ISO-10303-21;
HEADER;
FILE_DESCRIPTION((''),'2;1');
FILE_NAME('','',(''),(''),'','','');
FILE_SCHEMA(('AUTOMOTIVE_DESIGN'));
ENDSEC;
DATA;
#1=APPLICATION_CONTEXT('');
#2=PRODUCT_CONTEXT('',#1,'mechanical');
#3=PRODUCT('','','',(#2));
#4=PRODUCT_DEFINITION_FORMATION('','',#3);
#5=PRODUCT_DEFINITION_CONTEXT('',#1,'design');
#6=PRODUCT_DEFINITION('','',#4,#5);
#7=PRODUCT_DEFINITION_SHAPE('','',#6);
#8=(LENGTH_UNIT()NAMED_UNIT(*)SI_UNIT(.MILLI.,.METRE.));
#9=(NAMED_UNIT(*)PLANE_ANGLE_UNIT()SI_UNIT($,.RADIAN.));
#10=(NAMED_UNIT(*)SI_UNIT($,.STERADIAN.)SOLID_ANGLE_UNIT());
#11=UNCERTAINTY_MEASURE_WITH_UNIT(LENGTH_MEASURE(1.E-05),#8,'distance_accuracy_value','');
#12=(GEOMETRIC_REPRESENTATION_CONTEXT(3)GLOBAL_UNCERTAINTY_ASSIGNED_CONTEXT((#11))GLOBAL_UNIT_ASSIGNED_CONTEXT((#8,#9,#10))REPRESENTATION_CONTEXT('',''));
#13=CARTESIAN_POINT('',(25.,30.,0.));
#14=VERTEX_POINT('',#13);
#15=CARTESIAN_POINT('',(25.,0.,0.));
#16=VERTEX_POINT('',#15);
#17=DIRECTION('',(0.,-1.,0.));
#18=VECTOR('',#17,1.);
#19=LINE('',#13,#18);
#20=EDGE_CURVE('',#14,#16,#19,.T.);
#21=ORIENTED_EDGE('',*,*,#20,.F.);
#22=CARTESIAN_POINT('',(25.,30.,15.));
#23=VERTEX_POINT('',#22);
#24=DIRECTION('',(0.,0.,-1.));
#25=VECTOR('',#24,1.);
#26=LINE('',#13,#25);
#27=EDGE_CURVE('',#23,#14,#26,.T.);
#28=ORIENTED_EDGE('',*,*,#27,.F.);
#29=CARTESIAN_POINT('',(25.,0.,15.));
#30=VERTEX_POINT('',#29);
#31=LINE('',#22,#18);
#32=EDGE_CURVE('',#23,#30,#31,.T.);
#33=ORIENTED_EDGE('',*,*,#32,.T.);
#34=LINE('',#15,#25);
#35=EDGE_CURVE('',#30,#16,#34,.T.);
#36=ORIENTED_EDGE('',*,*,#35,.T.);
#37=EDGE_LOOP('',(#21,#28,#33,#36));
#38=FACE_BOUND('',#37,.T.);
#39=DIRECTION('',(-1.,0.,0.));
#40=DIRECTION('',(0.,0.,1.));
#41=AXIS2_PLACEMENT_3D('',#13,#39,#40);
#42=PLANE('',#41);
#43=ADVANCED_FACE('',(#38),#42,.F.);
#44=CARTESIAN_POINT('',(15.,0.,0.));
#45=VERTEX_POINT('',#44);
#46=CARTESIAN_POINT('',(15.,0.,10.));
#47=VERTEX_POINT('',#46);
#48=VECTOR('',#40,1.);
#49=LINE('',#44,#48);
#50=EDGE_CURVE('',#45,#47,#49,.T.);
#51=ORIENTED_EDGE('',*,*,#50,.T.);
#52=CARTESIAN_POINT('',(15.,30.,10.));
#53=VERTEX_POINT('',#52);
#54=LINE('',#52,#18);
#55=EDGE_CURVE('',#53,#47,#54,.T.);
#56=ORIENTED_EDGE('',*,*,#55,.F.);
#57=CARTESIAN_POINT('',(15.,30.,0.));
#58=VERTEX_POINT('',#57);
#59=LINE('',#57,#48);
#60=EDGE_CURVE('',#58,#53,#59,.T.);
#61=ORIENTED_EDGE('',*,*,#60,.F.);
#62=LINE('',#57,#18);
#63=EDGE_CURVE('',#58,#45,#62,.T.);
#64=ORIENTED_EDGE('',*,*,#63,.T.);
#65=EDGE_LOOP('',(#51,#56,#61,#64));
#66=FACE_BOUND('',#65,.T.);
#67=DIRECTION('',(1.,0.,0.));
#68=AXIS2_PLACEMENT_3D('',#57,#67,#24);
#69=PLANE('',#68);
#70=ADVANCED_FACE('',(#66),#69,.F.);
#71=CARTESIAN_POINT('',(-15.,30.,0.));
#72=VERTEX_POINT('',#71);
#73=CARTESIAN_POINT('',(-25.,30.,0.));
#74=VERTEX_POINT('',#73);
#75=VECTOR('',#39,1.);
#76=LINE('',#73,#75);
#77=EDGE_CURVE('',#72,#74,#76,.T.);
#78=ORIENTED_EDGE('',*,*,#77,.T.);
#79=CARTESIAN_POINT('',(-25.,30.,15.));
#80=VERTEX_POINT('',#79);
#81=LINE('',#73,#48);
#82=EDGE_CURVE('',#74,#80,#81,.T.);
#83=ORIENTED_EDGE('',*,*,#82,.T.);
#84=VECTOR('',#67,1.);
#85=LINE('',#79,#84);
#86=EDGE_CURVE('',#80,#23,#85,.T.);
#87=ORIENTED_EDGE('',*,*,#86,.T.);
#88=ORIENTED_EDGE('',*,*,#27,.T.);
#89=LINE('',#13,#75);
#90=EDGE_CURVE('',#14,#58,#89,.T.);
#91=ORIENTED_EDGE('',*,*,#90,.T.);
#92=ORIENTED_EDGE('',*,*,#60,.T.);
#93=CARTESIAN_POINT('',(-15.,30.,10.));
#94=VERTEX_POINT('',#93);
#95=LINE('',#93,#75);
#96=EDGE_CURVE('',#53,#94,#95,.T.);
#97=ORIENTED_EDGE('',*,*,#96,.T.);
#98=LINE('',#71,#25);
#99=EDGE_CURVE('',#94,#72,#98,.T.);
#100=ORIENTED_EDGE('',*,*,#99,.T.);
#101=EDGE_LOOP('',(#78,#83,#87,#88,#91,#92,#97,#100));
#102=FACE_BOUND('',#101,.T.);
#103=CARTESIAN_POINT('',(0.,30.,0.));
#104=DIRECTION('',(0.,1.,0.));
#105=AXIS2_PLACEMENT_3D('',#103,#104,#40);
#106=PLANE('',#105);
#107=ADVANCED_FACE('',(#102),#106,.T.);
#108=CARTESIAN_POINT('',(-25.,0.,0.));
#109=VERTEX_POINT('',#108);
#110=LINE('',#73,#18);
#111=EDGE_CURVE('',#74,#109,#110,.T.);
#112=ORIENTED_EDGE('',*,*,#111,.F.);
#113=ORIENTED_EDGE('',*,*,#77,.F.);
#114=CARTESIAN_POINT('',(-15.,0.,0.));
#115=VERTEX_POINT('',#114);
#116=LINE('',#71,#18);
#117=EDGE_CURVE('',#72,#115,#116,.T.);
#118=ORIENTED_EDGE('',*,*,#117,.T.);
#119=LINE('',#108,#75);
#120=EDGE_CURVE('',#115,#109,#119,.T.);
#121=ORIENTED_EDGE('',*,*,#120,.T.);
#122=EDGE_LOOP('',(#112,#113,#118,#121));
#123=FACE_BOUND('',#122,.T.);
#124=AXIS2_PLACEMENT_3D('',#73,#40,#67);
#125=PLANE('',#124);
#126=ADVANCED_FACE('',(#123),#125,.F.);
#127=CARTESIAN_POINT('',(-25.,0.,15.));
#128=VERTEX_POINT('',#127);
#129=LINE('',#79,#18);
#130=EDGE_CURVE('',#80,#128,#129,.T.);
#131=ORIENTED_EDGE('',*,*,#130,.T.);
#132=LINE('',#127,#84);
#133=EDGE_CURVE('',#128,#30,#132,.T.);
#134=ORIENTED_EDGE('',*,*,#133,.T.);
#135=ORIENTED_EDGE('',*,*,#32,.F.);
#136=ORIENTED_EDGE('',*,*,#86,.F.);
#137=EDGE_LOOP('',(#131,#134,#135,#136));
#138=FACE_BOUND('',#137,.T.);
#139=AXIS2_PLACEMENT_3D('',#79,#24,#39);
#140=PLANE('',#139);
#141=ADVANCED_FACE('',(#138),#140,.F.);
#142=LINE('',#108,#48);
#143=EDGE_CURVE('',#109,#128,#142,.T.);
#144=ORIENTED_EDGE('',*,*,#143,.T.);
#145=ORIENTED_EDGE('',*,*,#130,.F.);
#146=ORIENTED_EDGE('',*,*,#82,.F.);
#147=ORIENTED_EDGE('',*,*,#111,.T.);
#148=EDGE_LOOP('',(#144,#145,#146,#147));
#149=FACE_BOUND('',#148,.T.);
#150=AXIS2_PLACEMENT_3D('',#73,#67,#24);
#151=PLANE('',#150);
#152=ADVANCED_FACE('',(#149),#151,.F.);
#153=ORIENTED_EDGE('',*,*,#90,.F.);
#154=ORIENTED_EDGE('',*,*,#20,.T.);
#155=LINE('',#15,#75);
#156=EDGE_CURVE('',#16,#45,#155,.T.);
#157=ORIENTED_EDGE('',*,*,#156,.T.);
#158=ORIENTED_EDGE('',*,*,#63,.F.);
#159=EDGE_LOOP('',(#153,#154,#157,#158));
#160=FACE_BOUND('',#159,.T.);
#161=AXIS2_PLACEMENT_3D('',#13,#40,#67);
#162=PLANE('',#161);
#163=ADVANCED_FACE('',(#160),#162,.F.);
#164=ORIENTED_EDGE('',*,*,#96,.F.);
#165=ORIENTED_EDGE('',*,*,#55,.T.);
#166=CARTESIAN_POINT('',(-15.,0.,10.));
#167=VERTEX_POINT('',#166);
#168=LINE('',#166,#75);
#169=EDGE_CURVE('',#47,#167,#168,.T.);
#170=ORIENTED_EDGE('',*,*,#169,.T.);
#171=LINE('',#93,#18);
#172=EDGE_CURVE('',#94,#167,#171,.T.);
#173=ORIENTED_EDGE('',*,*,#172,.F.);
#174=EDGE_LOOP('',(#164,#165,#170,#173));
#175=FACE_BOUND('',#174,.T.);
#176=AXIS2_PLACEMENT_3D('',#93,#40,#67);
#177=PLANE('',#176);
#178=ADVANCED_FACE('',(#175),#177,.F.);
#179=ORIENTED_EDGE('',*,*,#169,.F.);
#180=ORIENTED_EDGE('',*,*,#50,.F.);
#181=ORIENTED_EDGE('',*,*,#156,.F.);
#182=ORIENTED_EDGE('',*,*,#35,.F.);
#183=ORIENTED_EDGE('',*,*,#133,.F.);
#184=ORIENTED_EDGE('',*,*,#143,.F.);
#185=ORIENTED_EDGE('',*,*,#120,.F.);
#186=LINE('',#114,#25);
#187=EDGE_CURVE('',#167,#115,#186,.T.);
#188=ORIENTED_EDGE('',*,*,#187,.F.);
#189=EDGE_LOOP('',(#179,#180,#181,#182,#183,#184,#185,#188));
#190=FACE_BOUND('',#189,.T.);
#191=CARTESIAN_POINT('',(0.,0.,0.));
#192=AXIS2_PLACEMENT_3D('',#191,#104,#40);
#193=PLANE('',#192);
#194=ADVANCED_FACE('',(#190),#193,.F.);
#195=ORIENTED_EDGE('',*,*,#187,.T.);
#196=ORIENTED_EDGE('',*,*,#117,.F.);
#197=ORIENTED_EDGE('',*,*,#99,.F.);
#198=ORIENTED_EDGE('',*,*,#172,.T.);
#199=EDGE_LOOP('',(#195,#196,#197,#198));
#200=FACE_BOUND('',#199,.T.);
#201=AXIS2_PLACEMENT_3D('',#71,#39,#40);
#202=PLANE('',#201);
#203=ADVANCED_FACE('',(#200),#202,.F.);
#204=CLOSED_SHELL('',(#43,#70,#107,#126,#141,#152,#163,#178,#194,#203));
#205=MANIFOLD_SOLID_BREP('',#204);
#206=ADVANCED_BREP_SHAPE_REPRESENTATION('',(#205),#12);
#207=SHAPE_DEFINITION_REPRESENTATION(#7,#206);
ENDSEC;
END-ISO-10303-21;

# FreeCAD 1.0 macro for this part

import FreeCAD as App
import Part
import Sketcher

V = App.Vector

doc = App.newDocument("Part")
body = doc.addObject("PartDesign::Body", "Body")

# Sketch on XZ plane
sketch1 = doc.addObject("Sketcher::SketchObject", "Sketch")
body.addObject(sketch1)
sketch1.AttachmentSupport = (doc.XZ_Plane, [""])
sketch1.MapMode = "FlatFace"
sketch1.addGeometry([
    Part.LineSegment(V(-15, 0, 0), V(-25, 0, 0)),  # 0
    Part.LineSegment(V(-25, 0, 0), V(-25, 15, 0)),  # 1
    Part.LineSegment(V(-25, 15, 0), V(25, 15, 0)),  # 2
    Part.LineSegment(V(25, 15, 0), V(25, 0, 0)),  # 3
    Part.LineSegment(V(25, 0, 0), V(15, 0, 0)),  # 4
    Part.LineSegment(V(15, 0, 0), V(15, 10, 0)),  # 5
    Part.LineSegment(V(15, 10, 0), V(-15, 10, 0)),  # 6
    Part.LineSegment(V(-15, 10, 0), V(-15, 0, 0)),  # 7
], False)
sketch1.addConstraint([
    Sketcher.Constraint("Coincident", 0, 2, 1, 1),
    Sketcher.Constraint("Coincident", 1, 2, 2, 1),
    Sketcher.Constraint("Coincident", 2, 2, 3, 1),
    Sketcher.Constraint("Coincident", 3, 2, 4, 1),
    Sketcher.Constraint("Coincident", 4, 2, 5, 1),
    Sketcher.Constraint("Coincident", 5, 2, 6, 1),
    Sketcher.Constraint("Coincident", 6, 2, 7, 1),
    Sketcher.Constraint("Coincident", 7, 2, 0, 1),
    Sketcher.Constraint("Horizontal", 0),
    Sketcher.Constraint("Vertical", 1),
    Sketcher.Constraint("Horizontal", 2),
    Sketcher.Constraint("Vertical", 3),
    Sketcher.Constraint("Horizontal", 4),
    Sketcher.Constraint("Vertical", 5),
    Sketcher.Constraint("Horizontal", 6),
    Sketcher.Constraint("Vertical", 7),
    Sketcher.Constraint("Symmetric", 0, 2, 3, 2, -1, 1),
    Sketcher.Constraint("Symmetric", 4, 2, 7, 2, -2),
    Sketcher.Constraint("Equal", 4, 5),
    Sketcher.Constraint("DistanceX", 0, 2, 0, 1, 10.0),
    Sketcher.Constraint("DistanceX", 2, 1, 2, 2, 50.0),
    Sketcher.Constraint("DistanceY", 1, 1, 1, 2, 15.0),
])
pad1 = doc.addObject("PartDesign::Pad", "Pad")
body.addObject(pad1)
pad1.Profile = sketch1
pad1.Length = 30
pad1.Reversed = True

doc.recompute()
